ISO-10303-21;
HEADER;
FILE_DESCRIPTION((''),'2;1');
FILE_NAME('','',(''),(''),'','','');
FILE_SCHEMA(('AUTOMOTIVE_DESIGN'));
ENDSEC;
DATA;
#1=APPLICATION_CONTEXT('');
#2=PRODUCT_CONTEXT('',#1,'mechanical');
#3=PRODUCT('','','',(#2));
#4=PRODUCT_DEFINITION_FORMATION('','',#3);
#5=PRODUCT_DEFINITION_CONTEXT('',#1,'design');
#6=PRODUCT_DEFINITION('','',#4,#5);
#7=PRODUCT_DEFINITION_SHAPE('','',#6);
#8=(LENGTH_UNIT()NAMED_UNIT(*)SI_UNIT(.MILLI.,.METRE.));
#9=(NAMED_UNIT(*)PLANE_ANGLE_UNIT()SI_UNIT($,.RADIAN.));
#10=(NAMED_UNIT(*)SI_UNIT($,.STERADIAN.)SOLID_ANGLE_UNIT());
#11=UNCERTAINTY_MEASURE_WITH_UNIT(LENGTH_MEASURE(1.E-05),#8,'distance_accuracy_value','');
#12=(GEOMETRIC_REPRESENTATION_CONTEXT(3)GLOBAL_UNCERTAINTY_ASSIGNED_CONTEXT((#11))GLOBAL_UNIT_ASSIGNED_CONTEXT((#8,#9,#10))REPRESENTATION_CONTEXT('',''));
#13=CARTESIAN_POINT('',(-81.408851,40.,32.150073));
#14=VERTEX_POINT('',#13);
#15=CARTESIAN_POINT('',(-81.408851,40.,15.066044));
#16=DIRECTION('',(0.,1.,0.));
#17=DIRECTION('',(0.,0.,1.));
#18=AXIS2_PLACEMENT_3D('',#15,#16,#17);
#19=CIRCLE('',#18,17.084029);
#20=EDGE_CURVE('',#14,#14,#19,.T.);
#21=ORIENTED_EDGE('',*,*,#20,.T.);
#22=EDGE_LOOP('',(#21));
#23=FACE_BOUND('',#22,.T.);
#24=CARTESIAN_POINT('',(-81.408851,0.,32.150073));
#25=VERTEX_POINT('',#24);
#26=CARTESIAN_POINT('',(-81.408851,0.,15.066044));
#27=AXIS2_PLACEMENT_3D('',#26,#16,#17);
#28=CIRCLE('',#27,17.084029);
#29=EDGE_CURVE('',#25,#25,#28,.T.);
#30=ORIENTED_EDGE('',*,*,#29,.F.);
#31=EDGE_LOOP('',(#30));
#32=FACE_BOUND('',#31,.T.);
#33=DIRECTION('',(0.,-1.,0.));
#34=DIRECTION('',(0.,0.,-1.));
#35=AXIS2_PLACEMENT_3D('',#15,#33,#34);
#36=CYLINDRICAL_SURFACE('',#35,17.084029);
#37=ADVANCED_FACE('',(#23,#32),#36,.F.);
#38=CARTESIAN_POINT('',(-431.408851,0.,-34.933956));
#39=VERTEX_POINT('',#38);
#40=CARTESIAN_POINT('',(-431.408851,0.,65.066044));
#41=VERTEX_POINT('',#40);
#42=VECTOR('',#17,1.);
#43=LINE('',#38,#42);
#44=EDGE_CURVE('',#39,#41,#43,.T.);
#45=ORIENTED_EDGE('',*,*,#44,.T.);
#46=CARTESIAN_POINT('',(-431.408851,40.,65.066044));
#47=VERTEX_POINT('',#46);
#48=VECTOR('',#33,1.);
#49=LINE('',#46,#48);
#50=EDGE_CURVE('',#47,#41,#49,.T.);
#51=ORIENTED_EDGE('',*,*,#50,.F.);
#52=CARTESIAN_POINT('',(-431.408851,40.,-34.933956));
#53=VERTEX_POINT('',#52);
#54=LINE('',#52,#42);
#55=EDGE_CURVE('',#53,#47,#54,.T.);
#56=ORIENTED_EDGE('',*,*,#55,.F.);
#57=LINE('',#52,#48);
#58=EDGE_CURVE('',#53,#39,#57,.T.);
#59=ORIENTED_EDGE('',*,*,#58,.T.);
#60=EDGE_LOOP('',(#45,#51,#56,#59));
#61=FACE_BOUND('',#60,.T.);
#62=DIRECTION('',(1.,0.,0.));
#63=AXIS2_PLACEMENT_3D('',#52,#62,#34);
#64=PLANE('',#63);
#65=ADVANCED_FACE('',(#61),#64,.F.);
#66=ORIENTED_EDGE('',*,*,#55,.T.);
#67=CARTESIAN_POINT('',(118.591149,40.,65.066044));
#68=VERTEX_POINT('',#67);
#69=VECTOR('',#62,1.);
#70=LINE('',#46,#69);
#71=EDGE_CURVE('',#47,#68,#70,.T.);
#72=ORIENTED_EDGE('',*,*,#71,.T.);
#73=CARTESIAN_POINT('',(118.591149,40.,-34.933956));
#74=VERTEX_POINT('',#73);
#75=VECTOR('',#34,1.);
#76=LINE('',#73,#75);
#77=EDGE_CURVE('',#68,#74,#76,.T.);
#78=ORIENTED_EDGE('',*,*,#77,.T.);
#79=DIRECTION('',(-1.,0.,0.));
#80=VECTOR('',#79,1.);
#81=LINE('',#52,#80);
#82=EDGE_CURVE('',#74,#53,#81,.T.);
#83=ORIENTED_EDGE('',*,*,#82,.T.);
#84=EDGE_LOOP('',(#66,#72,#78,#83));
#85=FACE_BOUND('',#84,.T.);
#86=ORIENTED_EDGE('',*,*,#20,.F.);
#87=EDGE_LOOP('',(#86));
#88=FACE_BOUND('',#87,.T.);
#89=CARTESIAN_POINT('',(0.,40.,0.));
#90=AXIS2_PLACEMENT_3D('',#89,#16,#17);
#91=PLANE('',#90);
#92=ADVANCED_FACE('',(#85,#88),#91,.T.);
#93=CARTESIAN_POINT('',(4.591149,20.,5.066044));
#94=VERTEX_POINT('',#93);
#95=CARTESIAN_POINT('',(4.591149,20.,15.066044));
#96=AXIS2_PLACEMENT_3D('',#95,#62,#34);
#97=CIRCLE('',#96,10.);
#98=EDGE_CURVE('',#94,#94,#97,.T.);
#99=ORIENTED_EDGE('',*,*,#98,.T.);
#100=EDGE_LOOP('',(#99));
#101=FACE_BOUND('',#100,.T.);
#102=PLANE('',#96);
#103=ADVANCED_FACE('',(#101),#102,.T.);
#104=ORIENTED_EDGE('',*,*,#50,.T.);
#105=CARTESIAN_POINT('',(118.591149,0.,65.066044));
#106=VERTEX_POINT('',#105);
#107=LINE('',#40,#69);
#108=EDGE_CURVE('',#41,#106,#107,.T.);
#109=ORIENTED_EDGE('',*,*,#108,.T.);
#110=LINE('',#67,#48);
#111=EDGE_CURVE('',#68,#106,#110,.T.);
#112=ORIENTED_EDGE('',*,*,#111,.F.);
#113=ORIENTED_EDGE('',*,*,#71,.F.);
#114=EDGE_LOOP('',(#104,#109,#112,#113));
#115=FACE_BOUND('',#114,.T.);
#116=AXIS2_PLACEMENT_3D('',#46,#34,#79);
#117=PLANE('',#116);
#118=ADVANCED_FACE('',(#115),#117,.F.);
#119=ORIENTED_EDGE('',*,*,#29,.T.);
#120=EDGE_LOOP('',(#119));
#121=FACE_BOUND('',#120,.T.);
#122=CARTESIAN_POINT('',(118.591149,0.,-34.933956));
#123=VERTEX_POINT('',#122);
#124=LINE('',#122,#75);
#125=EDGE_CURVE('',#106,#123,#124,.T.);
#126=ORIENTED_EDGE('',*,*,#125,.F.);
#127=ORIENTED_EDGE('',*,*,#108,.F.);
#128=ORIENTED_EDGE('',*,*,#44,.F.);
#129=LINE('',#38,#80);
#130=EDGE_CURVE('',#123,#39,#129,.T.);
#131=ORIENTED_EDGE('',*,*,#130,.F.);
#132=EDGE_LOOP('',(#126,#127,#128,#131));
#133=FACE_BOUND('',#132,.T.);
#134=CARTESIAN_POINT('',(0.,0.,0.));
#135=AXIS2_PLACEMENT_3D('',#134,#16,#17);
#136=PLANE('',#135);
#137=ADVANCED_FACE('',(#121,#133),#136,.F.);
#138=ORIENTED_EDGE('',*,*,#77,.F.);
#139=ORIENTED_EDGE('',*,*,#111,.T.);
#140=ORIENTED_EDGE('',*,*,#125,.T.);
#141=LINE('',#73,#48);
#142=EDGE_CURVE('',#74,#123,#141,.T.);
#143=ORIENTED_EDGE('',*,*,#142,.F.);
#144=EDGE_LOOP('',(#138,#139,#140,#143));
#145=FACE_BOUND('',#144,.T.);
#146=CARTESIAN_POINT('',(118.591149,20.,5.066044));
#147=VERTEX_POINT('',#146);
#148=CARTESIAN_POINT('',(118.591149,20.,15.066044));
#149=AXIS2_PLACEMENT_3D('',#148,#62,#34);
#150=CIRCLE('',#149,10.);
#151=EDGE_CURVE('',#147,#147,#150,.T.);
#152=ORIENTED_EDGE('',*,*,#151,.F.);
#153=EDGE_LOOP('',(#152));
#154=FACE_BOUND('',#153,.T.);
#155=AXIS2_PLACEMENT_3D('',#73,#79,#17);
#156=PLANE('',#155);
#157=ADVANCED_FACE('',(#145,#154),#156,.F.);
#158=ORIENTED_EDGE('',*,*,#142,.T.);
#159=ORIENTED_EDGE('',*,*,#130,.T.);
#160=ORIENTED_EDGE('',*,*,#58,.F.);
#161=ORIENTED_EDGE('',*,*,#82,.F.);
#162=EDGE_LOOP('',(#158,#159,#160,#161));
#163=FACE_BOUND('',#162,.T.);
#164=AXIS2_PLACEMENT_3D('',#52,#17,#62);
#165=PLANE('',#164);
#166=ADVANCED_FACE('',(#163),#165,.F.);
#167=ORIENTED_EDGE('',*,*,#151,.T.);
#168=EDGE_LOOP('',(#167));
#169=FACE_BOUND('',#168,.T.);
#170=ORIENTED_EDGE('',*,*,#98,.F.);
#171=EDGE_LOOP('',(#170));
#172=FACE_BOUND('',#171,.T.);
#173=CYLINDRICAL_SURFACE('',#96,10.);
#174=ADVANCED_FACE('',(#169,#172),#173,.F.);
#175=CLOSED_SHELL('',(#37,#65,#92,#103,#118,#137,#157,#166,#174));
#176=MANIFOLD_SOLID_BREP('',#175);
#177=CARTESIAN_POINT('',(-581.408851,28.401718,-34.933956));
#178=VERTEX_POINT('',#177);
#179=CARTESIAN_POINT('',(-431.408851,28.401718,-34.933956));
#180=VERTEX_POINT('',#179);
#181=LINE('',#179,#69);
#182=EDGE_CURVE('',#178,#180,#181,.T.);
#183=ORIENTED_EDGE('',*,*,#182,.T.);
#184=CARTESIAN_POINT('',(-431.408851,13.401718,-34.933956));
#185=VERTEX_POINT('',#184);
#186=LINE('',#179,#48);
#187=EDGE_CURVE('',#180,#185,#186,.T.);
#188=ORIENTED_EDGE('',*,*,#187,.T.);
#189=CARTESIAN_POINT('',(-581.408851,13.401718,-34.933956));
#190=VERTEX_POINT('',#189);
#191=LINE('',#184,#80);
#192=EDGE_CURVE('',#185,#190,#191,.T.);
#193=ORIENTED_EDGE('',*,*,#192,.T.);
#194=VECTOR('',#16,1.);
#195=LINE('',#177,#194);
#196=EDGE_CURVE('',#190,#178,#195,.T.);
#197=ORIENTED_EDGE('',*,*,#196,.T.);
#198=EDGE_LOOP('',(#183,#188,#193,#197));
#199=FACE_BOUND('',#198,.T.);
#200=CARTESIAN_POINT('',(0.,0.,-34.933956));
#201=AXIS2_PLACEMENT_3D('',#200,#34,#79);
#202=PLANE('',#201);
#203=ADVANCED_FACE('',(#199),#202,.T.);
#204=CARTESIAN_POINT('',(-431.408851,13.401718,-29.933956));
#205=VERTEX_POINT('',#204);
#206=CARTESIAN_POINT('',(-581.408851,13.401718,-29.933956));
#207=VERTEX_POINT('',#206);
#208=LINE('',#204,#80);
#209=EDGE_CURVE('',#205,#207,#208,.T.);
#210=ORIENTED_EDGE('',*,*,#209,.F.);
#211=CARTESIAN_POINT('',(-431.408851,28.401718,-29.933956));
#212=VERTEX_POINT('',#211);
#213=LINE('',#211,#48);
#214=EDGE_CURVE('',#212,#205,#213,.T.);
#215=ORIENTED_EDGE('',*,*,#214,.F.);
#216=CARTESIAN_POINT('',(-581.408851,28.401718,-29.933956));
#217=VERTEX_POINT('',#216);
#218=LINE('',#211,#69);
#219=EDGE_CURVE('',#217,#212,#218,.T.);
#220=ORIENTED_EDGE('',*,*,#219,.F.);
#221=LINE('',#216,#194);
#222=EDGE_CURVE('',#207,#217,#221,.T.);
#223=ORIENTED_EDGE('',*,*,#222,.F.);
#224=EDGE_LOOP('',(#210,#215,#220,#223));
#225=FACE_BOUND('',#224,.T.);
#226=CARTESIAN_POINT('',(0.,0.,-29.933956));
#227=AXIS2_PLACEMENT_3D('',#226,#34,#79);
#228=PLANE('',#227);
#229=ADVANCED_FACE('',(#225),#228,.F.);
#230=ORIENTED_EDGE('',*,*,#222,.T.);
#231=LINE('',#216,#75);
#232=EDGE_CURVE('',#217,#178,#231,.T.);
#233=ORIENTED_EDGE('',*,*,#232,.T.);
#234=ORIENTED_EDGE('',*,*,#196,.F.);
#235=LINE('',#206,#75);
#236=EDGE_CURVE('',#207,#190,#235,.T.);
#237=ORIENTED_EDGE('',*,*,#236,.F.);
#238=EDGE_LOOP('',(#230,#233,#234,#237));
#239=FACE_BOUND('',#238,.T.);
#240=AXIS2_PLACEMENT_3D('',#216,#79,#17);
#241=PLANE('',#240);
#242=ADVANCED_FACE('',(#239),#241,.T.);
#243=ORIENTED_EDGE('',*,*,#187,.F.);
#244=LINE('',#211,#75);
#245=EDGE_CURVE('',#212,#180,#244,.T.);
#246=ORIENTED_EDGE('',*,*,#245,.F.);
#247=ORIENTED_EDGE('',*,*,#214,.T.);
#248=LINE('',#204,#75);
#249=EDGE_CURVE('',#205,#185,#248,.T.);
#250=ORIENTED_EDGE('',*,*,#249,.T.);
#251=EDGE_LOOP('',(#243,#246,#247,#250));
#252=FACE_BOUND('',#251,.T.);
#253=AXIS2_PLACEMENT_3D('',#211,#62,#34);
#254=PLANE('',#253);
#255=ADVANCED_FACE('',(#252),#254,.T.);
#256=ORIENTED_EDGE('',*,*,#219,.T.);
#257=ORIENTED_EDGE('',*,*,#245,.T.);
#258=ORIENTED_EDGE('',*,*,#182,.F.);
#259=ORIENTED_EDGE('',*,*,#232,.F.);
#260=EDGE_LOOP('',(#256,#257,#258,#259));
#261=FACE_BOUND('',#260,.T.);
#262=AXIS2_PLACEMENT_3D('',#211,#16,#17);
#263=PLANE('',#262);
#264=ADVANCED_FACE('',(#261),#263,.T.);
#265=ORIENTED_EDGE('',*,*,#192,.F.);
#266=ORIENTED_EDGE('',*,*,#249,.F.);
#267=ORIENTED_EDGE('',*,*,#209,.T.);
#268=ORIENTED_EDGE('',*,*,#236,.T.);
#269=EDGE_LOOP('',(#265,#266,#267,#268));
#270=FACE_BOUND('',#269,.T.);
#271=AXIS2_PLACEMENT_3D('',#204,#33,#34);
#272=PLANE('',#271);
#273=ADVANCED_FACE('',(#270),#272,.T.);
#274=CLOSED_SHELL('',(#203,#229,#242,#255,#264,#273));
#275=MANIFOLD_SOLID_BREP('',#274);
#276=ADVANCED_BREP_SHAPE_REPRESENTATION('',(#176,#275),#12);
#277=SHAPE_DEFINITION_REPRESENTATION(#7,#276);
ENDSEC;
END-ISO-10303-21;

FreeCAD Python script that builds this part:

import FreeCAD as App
import Part
import Sketcher

V = App.Vector


def add_polygon(sketch, points):
    """Adds a closed chain of lines whose ends are joined by coincident constraints."""
    first, n = sketch.GeometryCount, len(points)
    for a, b in zip(points, points[1:] + points[:1]):
        sketch.addGeometry(Part.LineSegment(App.Vector(*a, 0), App.Vector(*b, 0)), False)
    for i in range(n):
        sketch.addConstraint(Sketcher.Constraint("Coincident", first + i, 2, first + (i + 1) % n, 1))

doc = App.newDocument("Part")
body = doc.addObject("PartDesign::Body", "Body")

sketch1 = body.newObject("Sketcher::SketchObject", "Sketch")
sketch1.AttachmentSupport = (doc.getObject("XZ_Plane"), [""])
sketch1.MapMode = "FlatFace"
add_polygon(sketch1, [(-431, -35), (-431, 65), (119, 65), (119, -35)])
sketch1.addGeometry(Part.Circle(V(-81, 15, 0), V(0, 0, 1), 17), False)
sketch1.addConstraint([
    Sketcher.Constraint("Vertical", 0),
    Sketcher.Constraint("Horizontal", 1),
    Sketcher.Constraint("Vertical", 2),
    Sketcher.Constraint("Horizontal", 3),
    Sketcher.Constraint("DistanceX", 1, 1, 1, 2, 550.0),
    Sketcher.Constraint("DistanceY", 0, 1, 0, 2, 100.0),
    Sketcher.Constraint("DistanceX", 0, 2, 4, 3, 350.0),
    Sketcher.Constraint("DistanceY", 4, 3, 0, 2, 50.0),
    Sketcher.Constraint("Diameter", 4, 34.168059),
    Sketcher.Constraint("DistanceX", 4, 3, -1, 1, 81.408851),
    Sketcher.Constraint("DistanceY", -1, 1, 4, 3, 15.066044),
])
pad1 = body.newObject("PartDesign::Pad", "Pad")
pad1.Profile = sketch1
pad1.Length = 40
pad1.Reversed = True

sketch2 = body.newObject("Sketcher::SketchObject", "Sketch001")
sketch2.AttachmentSupport = (doc.getObject("YZ_Plane"), [""])
sketch2.MapMode = "FlatFace"
sketch2.AttachmentOffset = App.Placement(V(0, 0, 118.591149), App.Rotation())
sketch2.addGeometry(Part.Circle(V(20, 15, 0), V(0, 0, 1), 10), False)
sketch2.addConstraint([
    Sketcher.Constraint("Diameter", 0, 20.0),
    Sketcher.Constraint("DistanceX", -1, 1, 0, 3, 20.0),
    Sketcher.Constraint("DistanceY", -1, 1, 0, 3, 15.066044),
])
pocket1 = body.newObject("PartDesign::Pocket", "Pocket")
pocket1.Profile = sketch2
pocket1.Length = 114
body2 = doc.addObject("PartDesign::Body", "Body001")

sketch3 = body2.newObject("Sketcher::SketchObject", "Sketch002")
sketch3.AttachmentSupport = (doc.getObject("XY_Plane001"), [""])
sketch3.MapMode = "FlatFace"
sketch3.AttachmentOffset = App.Placement(V(0, 0, -34.933956), App.Rotation())
add_polygon(sketch3, [(-431, 28), (-431, 13), (-581, 13), (-581, 28)])
sketch3.addConstraint([
    Sketcher.Constraint("Vertical", 0),
    Sketcher.Constraint("Horizontal", 1),
    Sketcher.Constraint("Vertical", 2),
    Sketcher.Constraint("Horizontal", 3),
    Sketcher.Constraint("DistanceX", 1, 2, 1, 1, 150.0),
    Sketcher.Constraint("DistanceY", 0, 2, 0, 1, 15.0),
    Sketcher.Constraint("DistanceX", 0, 2, -1, 1, 431.408851),
    Sketcher.Constraint("DistanceY", -1, 1, 0, 2, 13.401718),
])
pad2 = body2.newObject("PartDesign::Pad", "Pad001")
pad2.Profile = sketch3
pad2.Length = 5

doc.recompute()
